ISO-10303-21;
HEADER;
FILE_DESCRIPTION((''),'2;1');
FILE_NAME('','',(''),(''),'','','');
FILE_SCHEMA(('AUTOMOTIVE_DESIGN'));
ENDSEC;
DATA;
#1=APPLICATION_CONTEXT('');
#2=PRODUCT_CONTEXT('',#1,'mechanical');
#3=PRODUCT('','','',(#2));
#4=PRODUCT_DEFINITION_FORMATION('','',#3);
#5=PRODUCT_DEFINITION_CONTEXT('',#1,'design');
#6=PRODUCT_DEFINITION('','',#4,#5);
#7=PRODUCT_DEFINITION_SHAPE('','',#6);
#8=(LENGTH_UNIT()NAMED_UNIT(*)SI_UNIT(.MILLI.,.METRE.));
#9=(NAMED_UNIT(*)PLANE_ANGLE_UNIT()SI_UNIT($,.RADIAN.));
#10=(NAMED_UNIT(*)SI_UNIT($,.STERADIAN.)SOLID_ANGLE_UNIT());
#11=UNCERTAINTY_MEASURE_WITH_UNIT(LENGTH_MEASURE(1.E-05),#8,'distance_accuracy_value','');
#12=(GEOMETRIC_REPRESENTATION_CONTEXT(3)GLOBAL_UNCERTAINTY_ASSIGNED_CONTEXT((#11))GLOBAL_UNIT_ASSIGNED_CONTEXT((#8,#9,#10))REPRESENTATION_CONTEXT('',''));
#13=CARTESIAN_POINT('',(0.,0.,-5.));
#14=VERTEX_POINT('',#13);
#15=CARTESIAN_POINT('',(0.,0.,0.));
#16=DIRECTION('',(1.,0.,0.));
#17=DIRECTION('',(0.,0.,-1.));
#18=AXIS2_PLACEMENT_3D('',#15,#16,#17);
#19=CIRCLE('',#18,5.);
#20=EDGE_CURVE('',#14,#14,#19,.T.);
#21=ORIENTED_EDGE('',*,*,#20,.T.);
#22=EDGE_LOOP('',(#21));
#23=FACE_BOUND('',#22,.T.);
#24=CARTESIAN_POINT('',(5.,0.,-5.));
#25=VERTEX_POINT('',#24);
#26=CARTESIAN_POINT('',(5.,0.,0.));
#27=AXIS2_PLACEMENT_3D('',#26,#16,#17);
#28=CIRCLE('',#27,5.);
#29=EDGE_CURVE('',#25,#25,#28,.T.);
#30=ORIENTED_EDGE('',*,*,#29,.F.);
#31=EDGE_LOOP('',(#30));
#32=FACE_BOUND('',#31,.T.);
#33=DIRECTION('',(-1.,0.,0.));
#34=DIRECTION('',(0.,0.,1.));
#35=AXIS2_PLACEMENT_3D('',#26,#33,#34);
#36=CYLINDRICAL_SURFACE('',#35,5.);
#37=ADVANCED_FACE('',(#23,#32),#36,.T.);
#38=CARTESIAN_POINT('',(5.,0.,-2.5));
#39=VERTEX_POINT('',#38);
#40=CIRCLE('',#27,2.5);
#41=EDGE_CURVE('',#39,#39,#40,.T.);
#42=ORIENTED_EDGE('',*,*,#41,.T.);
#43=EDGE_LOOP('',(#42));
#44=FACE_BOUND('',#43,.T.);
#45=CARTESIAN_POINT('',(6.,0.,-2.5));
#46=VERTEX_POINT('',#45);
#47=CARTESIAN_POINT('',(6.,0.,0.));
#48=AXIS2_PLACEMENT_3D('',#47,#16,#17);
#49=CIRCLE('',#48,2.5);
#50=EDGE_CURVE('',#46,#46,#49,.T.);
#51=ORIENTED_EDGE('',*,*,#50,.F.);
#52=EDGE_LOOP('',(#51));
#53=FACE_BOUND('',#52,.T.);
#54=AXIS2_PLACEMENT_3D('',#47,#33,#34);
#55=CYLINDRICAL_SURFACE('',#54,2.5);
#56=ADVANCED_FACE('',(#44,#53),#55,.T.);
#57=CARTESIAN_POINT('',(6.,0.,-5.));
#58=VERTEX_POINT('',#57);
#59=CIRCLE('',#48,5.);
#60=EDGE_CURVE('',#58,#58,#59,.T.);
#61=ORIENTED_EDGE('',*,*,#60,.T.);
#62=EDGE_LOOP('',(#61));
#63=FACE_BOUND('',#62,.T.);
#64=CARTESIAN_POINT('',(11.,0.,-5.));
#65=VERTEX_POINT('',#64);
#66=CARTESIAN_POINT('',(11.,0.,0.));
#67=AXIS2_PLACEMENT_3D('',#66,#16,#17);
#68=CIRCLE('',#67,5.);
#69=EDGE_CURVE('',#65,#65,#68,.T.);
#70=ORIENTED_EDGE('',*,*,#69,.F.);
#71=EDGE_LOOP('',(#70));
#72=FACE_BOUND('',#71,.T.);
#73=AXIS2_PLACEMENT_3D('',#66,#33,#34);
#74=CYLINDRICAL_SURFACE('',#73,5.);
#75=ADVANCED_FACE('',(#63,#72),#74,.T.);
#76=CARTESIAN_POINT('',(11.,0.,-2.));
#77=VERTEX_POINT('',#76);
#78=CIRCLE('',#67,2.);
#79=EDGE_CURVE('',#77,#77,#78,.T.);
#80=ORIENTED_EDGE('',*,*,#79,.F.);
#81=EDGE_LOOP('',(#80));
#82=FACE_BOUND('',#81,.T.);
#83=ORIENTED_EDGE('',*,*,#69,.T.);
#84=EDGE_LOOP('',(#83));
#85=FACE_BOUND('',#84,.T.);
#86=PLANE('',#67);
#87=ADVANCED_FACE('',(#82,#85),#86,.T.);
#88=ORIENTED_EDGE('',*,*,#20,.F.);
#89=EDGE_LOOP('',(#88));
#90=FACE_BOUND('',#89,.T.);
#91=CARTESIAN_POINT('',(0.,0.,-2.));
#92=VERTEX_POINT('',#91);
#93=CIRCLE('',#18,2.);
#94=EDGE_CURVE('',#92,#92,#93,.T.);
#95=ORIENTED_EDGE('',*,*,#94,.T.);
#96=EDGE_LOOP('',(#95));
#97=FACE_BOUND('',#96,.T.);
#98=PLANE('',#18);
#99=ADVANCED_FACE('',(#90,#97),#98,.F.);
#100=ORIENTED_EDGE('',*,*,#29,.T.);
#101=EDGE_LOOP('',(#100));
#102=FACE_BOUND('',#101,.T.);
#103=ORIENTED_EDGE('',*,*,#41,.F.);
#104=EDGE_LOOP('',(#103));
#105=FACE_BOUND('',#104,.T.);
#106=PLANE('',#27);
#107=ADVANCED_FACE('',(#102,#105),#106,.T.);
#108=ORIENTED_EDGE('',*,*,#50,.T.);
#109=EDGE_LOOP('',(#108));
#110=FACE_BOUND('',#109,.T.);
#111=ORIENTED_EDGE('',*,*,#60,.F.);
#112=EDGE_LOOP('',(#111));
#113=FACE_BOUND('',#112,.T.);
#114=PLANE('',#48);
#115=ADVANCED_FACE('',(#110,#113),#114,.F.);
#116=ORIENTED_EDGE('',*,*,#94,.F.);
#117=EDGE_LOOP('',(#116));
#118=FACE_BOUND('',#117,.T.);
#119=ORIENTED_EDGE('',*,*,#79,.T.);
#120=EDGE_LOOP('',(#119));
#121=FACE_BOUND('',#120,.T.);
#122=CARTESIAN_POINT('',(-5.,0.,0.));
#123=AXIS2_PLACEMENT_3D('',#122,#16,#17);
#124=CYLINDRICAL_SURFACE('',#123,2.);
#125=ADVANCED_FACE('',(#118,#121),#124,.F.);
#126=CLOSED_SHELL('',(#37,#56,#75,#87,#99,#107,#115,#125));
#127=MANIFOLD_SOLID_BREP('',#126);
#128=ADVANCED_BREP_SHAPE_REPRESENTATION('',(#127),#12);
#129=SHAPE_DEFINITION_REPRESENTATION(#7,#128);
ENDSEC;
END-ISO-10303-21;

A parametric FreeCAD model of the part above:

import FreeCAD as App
import Part
import Sketcher
from FreeCAD import Vector

doc = App.newDocument("Part")
body = doc.addObject("PartDesign::Body", "Body")

# Sketch on YZ plane
sketch1 = body.newObject("Sketcher::SketchObject", "Sketch")
sketch1.AttachmentSupport = (doc.getObject("YZ_Plane"), [""])
sketch1.MapMode = "FlatFace"
sketch1.addGeometry(Part.Circle(Vector(0, 0, 0), Vector(0, 0, 1), 5), False)
sketch1.addConstraint(Sketcher.Constraint("Coincident", 0, 3, -1, 1))
sketch1.addConstraint(Sketcher.Constraint("Diameter", 0, 10.0))
pad1 = body.newObject("PartDesign::Pad", "Pad")
pad1.Profile = sketch1
pad1.Length = 5

# Sketch on YZ plane
sketch2 = body.newObject("Sketcher::SketchObject", "Sketch001")
sketch2.AttachmentSupport = (doc.getObject("YZ_Plane"), [""])
sketch2.MapMode = "FlatFace"
sketch2.AttachmentOffset = App.Placement(Vector(0, 0, 5), App.Rotation())
sketch2.addGeometry(Part.Circle(Vector(0, 0, 0), Vector(0, 0, 1), 2.5), False)
sketch2.addConstraint(Sketcher.Constraint("Coincident", 0, 3, -1, 1))
sketch2.addConstraint(Sketcher.Constraint("Diameter", 0, 5.0))
pad2 = body.newObject("PartDesign::Pad", "Pad001")
pad2.Profile = sketch2
pad2.Length = 1

# Sketch on YZ plane
sketch3 = body.newObject("Sketcher::SketchObject", "Sketch002")
sketch3.AttachmentSupport = (doc.getObject("YZ_Plane"), [""])
sketch3.MapMode = "FlatFace"
sketch3.AttachmentOffset = App.Placement(Vector(0, 0, 6), App.Rotation())
sketch3.addGeometry(Part.Circle(Vector(0, 0, 0), Vector(0, 0, 1), 5), False)
sketch3.addConstraint(Sketcher.Constraint("Coincident", 0, 3, -1, 1))
sketch3.addConstraint(Sketcher.Constraint("Diameter", 0, 10.0))
pad3 = body.newObject("PartDesign::Pad", "Pad002")
pad3.Profile = sketch3
pad3.Length = 5

# Sketch on YZ plane
sketch4 = body.newObject("Sketcher::SketchObject", "Sketch003")
sketch4.AttachmentSupport = (doc.getObject("YZ_Plane"), [""])
sketch4.MapMode = "FlatFace"
sketch4.AttachmentOffset = App.Placement(Vector(0, 0, 11), App.Rotation())
sketch4.addGeometry(Part.Circle(Vector(0, 0, 0), Vector(0, 0, 1), 2), False)
sketch4.addConstraint(Sketcher.Constraint("Coincident", 0, 3, -1, 1))
sketch4.addConstraint(Sketcher.Constraint("Diameter", 0, 4.0))
pocket1 = body.newObject("PartDesign::Pocket", "Pocket")
pocket1.Profile = sketch4
pocket1.Length = 16

doc.recompute()
